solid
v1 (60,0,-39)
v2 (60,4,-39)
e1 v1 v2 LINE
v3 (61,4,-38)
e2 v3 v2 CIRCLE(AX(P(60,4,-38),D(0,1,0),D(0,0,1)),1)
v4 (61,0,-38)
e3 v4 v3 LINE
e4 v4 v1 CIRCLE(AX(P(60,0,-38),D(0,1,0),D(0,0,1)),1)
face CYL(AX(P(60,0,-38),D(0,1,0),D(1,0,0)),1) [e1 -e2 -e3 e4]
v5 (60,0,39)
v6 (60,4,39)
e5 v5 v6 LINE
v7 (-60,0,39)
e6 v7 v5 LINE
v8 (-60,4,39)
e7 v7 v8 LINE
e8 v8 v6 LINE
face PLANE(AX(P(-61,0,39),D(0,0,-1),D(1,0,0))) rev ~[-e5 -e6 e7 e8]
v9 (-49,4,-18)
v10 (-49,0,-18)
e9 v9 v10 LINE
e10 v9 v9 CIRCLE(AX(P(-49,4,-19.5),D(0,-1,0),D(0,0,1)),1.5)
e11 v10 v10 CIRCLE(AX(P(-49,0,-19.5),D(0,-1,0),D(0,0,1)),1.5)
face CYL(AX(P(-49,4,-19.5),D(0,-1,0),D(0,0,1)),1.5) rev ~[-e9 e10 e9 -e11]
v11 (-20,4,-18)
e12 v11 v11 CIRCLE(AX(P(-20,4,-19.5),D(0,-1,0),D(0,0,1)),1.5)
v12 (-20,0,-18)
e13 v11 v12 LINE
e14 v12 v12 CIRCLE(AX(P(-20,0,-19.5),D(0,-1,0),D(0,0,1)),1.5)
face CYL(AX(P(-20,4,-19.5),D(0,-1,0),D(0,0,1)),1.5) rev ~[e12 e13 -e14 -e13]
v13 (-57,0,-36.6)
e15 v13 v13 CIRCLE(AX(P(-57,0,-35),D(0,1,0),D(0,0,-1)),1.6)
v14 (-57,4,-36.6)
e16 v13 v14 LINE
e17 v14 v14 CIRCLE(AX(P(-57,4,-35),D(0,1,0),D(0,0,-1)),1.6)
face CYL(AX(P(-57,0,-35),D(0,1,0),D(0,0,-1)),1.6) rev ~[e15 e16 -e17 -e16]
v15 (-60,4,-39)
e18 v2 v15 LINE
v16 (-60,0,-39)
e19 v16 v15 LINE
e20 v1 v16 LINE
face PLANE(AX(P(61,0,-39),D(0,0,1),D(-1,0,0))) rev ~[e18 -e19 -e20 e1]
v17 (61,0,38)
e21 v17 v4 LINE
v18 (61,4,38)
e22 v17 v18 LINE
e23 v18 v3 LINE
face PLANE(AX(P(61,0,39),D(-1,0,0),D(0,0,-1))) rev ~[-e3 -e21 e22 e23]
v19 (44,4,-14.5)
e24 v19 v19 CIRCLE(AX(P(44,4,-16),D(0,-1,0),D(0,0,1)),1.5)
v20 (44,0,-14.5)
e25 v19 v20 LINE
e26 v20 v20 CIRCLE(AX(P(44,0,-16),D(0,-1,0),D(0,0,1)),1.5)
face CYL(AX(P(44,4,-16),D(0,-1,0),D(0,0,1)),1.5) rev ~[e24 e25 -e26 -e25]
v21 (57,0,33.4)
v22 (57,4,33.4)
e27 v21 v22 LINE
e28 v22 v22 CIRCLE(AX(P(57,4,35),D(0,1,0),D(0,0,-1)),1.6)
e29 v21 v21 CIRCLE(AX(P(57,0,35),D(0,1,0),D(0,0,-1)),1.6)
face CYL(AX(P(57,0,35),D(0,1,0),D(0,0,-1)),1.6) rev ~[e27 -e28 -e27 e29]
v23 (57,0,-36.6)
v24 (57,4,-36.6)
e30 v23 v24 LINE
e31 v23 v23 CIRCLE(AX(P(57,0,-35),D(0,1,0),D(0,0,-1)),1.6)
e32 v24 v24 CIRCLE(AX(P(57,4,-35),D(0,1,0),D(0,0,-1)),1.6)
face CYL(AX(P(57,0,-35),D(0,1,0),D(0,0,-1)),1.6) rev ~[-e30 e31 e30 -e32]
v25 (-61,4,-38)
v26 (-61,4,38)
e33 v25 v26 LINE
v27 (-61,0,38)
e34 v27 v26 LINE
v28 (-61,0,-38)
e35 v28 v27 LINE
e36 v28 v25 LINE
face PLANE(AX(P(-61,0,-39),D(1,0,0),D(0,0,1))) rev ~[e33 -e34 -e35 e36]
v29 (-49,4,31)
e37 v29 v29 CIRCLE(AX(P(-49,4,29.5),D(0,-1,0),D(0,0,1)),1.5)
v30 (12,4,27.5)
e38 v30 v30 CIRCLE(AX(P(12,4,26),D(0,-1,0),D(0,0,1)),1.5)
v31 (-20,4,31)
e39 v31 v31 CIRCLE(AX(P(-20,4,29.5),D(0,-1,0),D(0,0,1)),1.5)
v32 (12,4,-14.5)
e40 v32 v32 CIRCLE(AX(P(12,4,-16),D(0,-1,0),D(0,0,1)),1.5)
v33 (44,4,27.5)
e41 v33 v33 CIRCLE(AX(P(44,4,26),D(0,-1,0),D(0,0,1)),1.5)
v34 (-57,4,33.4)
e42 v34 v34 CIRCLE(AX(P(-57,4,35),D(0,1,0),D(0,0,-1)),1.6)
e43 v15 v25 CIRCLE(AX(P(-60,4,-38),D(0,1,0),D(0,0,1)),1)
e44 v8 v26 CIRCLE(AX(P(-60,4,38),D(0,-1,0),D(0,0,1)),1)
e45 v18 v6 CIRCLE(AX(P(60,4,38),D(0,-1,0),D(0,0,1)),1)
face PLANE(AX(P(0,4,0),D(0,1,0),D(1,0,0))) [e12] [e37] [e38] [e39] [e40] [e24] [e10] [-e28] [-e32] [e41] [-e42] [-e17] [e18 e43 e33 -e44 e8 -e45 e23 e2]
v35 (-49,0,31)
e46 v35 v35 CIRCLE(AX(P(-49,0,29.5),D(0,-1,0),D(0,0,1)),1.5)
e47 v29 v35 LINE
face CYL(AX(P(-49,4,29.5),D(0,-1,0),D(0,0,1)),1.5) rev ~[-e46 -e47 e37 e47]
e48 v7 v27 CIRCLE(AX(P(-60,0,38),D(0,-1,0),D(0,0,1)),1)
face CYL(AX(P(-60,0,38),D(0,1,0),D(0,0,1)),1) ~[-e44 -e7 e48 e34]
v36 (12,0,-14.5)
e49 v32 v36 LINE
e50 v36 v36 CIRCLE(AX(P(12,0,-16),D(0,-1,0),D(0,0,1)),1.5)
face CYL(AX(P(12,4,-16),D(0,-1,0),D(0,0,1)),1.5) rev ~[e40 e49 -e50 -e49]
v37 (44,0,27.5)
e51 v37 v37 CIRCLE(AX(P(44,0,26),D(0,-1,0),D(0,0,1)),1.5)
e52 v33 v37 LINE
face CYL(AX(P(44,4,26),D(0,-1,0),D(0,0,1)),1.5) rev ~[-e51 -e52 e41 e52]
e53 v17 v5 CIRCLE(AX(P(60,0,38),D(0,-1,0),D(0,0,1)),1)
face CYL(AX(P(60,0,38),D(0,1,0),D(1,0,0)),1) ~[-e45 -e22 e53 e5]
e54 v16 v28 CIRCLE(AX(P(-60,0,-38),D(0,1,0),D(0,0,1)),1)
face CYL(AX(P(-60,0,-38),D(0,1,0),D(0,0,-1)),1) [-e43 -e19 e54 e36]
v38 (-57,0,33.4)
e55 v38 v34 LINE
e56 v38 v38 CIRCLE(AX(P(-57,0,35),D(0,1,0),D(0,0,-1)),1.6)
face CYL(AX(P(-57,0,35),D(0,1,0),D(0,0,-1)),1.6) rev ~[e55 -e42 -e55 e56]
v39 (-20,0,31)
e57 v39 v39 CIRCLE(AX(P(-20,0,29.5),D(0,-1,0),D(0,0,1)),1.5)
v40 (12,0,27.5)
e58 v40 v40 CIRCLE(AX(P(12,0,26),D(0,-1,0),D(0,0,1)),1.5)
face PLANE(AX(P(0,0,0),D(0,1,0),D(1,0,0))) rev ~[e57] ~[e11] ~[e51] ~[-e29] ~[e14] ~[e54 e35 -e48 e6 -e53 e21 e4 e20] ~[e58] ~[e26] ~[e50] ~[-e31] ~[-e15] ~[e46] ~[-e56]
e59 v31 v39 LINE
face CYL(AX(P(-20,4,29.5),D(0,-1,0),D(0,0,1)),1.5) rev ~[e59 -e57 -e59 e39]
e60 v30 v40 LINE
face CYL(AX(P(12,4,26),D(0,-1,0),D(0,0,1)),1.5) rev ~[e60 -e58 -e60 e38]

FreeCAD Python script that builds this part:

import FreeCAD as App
import Part
import Sketcher
Q = App.Units.Quantity


def edges_at(feature, points):
    """Names of the edges that pass closest to the given points."""
    edges = feature.Shape.Edges
    near = lambda p: min(range(len(edges)), key=lambda i: edges[i].distToShape(Part.Vertex(*p))[0])
    return sorted({f"Edge{near(p) + 1}" for p in points})

doc = App.newDocument("Part")
body = doc.addObject("PartDesign::Body", "Body")

sketch1 = doc.addObject("Sketcher::SketchObject", "Sketch")
body.addObject(sketch1)
sketch1.AttachmentSupport = (doc.XZ_Plane, [""])
sketch1.MapMode = "FlatFace"
sketch1.addGeometry([
    Part.LineSegment(App.Vector(61, 39, 0), App.Vector(61, -39, 0)),
    Part.LineSegment(App.Vector(61, -39, 0), App.Vector(-61, -39, 0)),
    Part.LineSegment(App.Vector(-61, -39, 0), App.Vector(-61, 39, 0)),
    Part.LineSegment(App.Vector(-61, 39, 0), App.Vector(61, 39, 0)),
], False)
sketch1.addConstraint([
    Sketcher.Constraint("Coincident", 0, 2, 1, 1),
    Sketcher.Constraint("Coincident", 1, 2, 2, 1),
    Sketcher.Constraint("Coincident", 2, 2, 3, 1),
    Sketcher.Constraint("Coincident", 3, 2, 0, 1),
    Sketcher.Constraint("Vertical", 0),
    Sketcher.Constraint("Horizontal", 1),
    Sketcher.Constraint("Vertical", 2),
    Sketcher.Constraint("Horizontal", 3),
    Sketcher.Constraint("Symmetric", 0, 2, 2, 2, -1, 1),
    Sketcher.Constraint("DistanceX", 1, 2, 1, 1, Q("122 mm")),
    Sketcher.Constraint("DistanceY", 0, 2, 0, 1, Q("78 mm")),
])
pad1 = doc.addObject("PartDesign::Pad", "Pad")
body.addObject(pad1)
pad1.Profile = sketch1
pad1.Length = 4
pad1.Reversed = True

sketch2 = doc.addObject("Sketcher::SketchObject", "Sketch001")
body.addObject(sketch2)
sketch2.AttachmentSupport = (doc.XZ_Plane, [""])
sketch2.MapMode = "FlatFace"
sketch2.addGeometry([
    Part.Circle(App.Vector(-57, -35, 0), App.Vector(0, 0, 1), 1.6),
    Part.Circle(App.Vector(-57, 35, 0), App.Vector(0, 0, 1), 1.6),
    Part.Circle(App.Vector(57, 35, 0), App.Vector(0, 0, 1), 1.6),
    Part.Circle(App.Vector(57, -35, 0), App.Vector(0, 0, 1), 1.6),
], False)
sketch2.addConstraint([
    Sketcher.Constraint("Equal", 0, 1),
    Sketcher.Constraint("Equal", 1, 2),
    Sketcher.Constraint("Equal", 2, 3),
    Sketcher.Constraint("Symmetric", 0, 3, 2, 3, -1, 1),
    Sketcher.Constraint("Symmetric", 1, 3, 3, 3, -1, 1),
    Sketcher.Constraint("Symmetric", 1, 3, 2, 3, -2),
    Sketcher.Constraint("Diameter", 0, Q("3.2 mm")),
    Sketcher.Constraint("DistanceX", 0, 3, -1, 1, Q("57 mm")),
    Sketcher.Constraint("DistanceY", 0, 3, -1, 1, Q("35 mm")),
])
doc.recompute()
hole = doc.addObject("PartDesign::Hole", "Hole")
body.addObject(hole)
hole.Profile = sketch2
hole.ThreadType = "None"
hole.Diameter = 3.2
hole.DepthType = "ThroughAll"

sketch3 = doc.addObject("Sketcher::SketchObject", "Sketch002")
body.addObject(sketch3)
sketch3.AttachmentSupport = (doc.XZ_Plane, [""])
sketch3.MapMode = "FlatFace"
sketch3.AttachmentOffset = App.Placement(App.Vector(0, 0, -4), App.Rotation())
sketch3.addGeometry([
    Part.Circle(App.Vector(-49, -19.5, 0), App.Vector(0, 0, 1), 1.5),
    Part.Circle(App.Vector(-49, 29.5, 0), App.Vector(0, 0, 1), 1.5),
    Part.Circle(App.Vector(-20, 29.5, 0), App.Vector(0, 0, 1), 1.5),
    Part.Circle(App.Vector(-20, -19.5, 0), App.Vector(0, 0, 1), 1.5),
    Part.Circle(App.Vector(44, -16, 0), App.Vector(0, 0, 1), 1.5),
    Part.Circle(App.Vector(44, 26, 0), App.Vector(0, 0, 1), 1.5),
    Part.Circle(App.Vector(12, -16, 0), App.Vector(0, 0, 1), 1.5),
    Part.Circle(App.Vector(12, 26, 0), App.Vector(0, 0, 1), 1.5),
], False)
sketch3.addConstraint([
    Sketcher.Constraint("Equal", 0, 1),
    Sketcher.Constraint("Equal", 1, 2),
    Sketcher.Constraint("Equal", 2, 3),
    Sketcher.Constraint("Equal", 3, 4),
    Sketcher.Constraint("Equal", 4, 5),
    Sketcher.Constraint("Equal", 5, 6),
    Sketcher.Constraint("Equal", 6, 7),
    Sketcher.Constraint("Horizontal", 1, 3, 2, 3),
    Sketcher.Constraint("Horizontal", 0, 3, 3, 3),
    Sketcher.Constraint("Horizontal", 4, 3, 6, 3),
    Sketcher.Constraint("Horizontal", 5, 3, 7, 3),
    Sketcher.Constraint("Vertical", 0, 3, 1, 3),
    Sketcher.Constraint("Vertical", 2, 3, 3, 3),
    Sketcher.Constraint("Vertical", 4, 3, 5, 3),
    Sketcher.Constraint("Vertical", 6, 3, 7, 3),
    Sketcher.Constraint("Diameter", 0, Q("3 mm")),
    Sketcher.Constraint("DistanceX", 0, 3, -1, 1, Q("49 mm")),
    Sketcher.Constraint("DistanceX", 2, 3, -1, 1, Q("20 mm")),
    Sketcher.Constraint("DistanceX", -1, 1, 4, 3, Q("44 mm")),
    Sketcher.Constraint("DistanceY", 4, 3, -1, 1, Q("16 mm")),
    Sketcher.Constraint("DistanceY", -1, 1, 5, 3, Q("26 mm")),
    Sketcher.Constraint("DistanceX", -1, 1, 6, 3, Q("12 mm")),
    Sketcher.Constraint("DistanceY", 0, 3, 1, 3, Q("49 mm")),
    Sketcher.Constraint("DistanceY", 0, 3, -1, 1, Q("19.5 mm")),
])
doc.recompute()
hole2 = doc.addObject("PartDesign::Hole", "Hole001")
body.addObject(hole2)
hole2.Profile = sketch3
hole2.ThreadType = "None"
hole2.Diameter = 3
hole2.DepthType = "ThroughAll"
hole2.Reversed = True
doc.recompute()

fillet = doc.addObject("PartDesign::Fillet", "Fillet")
body.addObject(fillet)
fillet.Base = (hole2, edges_at(hole2, [
    (61, 2, 39),
    (61, 2, -39),
    (-61, 2, 39),
    (-61, 2, -39),
]))
fillet.Radius = 1

doc.recompute()
